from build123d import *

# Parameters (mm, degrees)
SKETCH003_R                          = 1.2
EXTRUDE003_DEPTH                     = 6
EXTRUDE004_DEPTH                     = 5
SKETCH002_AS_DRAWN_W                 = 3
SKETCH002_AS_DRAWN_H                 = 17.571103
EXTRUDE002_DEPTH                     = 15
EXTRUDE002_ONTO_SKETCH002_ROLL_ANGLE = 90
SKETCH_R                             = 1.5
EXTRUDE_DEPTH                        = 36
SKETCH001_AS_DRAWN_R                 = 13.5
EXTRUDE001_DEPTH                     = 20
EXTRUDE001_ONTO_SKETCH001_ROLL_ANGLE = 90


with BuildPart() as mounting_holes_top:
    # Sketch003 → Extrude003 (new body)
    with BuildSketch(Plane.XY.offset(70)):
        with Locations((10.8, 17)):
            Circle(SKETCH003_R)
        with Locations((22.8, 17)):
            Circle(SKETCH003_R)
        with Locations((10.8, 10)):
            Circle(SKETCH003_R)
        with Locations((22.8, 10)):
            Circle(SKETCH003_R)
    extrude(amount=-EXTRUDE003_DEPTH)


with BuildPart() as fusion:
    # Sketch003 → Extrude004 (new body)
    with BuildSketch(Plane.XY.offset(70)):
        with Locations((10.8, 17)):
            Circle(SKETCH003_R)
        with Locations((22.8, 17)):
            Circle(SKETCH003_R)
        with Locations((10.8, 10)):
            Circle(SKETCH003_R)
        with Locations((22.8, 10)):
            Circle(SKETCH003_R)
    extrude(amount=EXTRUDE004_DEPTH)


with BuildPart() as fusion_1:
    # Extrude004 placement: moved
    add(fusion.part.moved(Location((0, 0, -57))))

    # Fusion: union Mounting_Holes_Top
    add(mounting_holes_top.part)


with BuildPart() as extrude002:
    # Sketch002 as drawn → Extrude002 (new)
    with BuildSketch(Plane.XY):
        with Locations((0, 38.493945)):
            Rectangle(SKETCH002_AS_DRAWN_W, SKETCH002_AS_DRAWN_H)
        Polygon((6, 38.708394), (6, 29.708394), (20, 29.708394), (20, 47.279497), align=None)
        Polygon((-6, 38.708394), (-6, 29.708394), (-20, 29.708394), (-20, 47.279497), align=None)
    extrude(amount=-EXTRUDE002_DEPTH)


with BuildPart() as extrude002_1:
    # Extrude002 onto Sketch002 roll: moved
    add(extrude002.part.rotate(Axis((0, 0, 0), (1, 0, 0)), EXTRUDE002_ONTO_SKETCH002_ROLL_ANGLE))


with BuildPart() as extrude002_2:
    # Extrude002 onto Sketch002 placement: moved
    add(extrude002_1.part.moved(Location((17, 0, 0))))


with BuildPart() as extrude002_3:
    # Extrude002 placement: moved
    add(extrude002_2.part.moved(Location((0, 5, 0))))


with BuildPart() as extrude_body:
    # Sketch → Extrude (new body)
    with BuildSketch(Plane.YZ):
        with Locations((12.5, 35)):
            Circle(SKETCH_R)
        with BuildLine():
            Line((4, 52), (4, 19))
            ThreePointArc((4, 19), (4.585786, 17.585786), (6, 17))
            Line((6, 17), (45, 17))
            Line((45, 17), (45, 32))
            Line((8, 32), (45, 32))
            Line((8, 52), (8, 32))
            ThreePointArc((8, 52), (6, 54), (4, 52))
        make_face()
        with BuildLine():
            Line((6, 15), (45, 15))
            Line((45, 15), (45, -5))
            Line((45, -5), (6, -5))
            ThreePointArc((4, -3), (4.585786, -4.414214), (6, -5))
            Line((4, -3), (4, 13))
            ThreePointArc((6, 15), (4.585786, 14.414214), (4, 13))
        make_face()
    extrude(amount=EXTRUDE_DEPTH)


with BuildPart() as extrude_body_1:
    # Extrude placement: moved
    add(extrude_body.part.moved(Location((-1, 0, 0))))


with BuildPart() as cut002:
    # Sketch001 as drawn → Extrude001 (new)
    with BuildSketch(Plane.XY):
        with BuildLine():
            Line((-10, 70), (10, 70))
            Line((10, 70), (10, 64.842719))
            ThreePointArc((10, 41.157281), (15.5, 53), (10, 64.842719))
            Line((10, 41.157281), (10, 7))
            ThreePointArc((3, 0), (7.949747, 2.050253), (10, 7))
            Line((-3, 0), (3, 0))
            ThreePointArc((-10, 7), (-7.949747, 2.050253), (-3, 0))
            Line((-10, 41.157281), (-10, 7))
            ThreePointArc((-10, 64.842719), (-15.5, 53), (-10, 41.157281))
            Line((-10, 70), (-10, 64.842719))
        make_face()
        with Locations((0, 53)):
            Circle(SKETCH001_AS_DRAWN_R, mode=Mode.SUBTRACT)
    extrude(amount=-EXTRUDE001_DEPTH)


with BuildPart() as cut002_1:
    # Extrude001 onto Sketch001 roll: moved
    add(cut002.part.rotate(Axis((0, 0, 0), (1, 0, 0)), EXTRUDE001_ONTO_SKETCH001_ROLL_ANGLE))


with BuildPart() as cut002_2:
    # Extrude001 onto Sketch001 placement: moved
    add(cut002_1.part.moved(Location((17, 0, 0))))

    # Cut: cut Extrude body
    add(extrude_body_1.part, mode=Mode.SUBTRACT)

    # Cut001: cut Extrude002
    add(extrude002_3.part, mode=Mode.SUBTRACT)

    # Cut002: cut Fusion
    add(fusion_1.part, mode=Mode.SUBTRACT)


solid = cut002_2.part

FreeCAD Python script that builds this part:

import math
import FreeCAD as App
import Part
import Sketcher

V = App.Vector

doc = App.newDocument("Part")
params = doc.addObject("Spreadsheet::Sheet", "Params")
for row, (alias, value) in enumerate([
    ("sketch1_diameter", "2.4 mm"),
    ("pad1_length", "6 mm"),
    ("sketch2_diameter", "2.4 mm"),
    ("pad2_length", "5 mm"),
    ("sketch3_width", "3 mm"),
    ("sketch3_width2", "14 mm"),
    ("sketch3_height", "9 mm"),
    ("pad3_length", "15 mm"),
    ("sketch4_diameter", "3 mm"),
    ("sketch4_radius", "1.999999 mm"),
    ("sketch4_width", "39 mm"),
    ("sketch4_height", "33 mm"),
    ("sketch4_height2", "15 mm"),
    ("pad4_length", "36 mm"),
    ("sketch5_diameter", "27 mm"),
    ("sketch5_radius", "7.000002 mm"),
    ("sketch5_radius2", "15.499999 mm"),
    ("sketch5_width", "20 mm"),
    ("pad5_length", "20 mm"),
], start=1):
    params.set(f"A{row}", alias)
    params.set(f"B{row}", "=" + value)
    params.setAlias(f"B{row}", alias)

body = doc.addObject("PartDesign::Body", "Body")
body.AllowCompound = True

sketch1 = body.newObject("Sketcher::SketchObject", "Sketch")
sketch1.AttachmentSupport = (doc.getObject("XY_Plane"), [""])
sketch1.MapMode = "FlatFace"
sketch1.AttachmentOffset = App.Placement(V(0, 0, 70), App.Rotation())
sketch1.addGeometry(Part.Circle(V(10.8, 17, 0), V(0, 0, 1), 1.2), False)
sketch1.addGeometry(Part.Circle(V(22.8, 17, 0), V(0, 0, 1), 1.2), False)
sketch1.addGeometry(Part.Circle(V(10.8, 10, 0), V(0, 0, 1), 1.2), False)
sketch1.addGeometry(Part.Circle(V(22.8, 10, 0), V(0, 0, 1), 1.2), False)
sketch1.addConstraint(Sketcher.Constraint("Equal", 0, 1))
sketch1.addConstraint(Sketcher.Constraint("Equal", 1, 2))
sketch1.addConstraint(Sketcher.Constraint("Equal", 2, 3))
sketch1.addConstraint(Sketcher.Constraint("Horizontal", 0, 3, 1, 3))
sketch1.addConstraint(Sketcher.Constraint("Horizontal", 2, 3, 3, 3))
sketch1.addConstraint(Sketcher.Constraint("Vertical", 0, 3, 2, 3))
sketch1.addConstraint(Sketcher.Constraint("Vertical", 1, 3, 3, 3))
sketch1.addConstraint(Sketcher.Constraint("Diameter", 0, 2.4))
sketch1.addConstraint(Sketcher.Constraint("DistanceY", -1, 1, 0, 3, 17.0))
sketch1.addConstraint(Sketcher.Constraint("DistanceY", -1, 1, 2, 3, 10.0))
sketch1.addConstraint(Sketcher.Constraint("DistanceX", 0, 3, 1, 3, 12.0))
sketch1.addConstraint(Sketcher.Constraint("DistanceX", -1, 1, 0, 3, 10.8))
sketch1.setExpression("Constraints[7]", "Params.sketch1_diameter")
pad1 = body.newObject("PartDesign::Pad", "Pad")
pad1.Profile = sketch1
pad1.setExpression("Length", "Params.pad1_length")
pad1.Reversed = True
body2 = doc.addObject("PartDesign::Body", "Body001")
body2.AllowCompound = True

sketch2 = body2.newObject("Sketcher::SketchObject", "Sketch001")
sketch2.AttachmentSupport = (doc.getObject("XY_Plane001"), [""])
sketch2.MapMode = "FlatFace"
sketch2.AttachmentOffset = App.Placement(V(0, 0, 70), App.Rotation())
sketch2.addGeometry(Part.Circle(V(10.8, 17, 0), V(0, 0, 1), 1.2), False)
sketch2.addGeometry(Part.Circle(V(22.8, 17, 0), V(0, 0, 1), 1.2), False)
sketch2.addGeometry(Part.Circle(V(10.8, 10, 0), V(0, 0, 1), 1.2), False)
sketch2.addGeometry(Part.Circle(V(22.8, 10, 0), V(0, 0, 1), 1.2), False)
sketch2.addConstraint(Sketcher.Constraint("Equal", 0, 1))
sketch2.addConstraint(Sketcher.Constraint("Equal", 1, 2))
sketch2.addConstraint(Sketcher.Constraint("Equal", 2, 3))
sketch2.addConstraint(Sketcher.Constraint("Horizontal", 0, 3, 1, 3))
sketch2.addConstraint(Sketcher.Constraint("Horizontal", 2, 3, 3, 3))
sketch2.addConstraint(Sketcher.Constraint("Vertical", 0, 3, 2, 3))
sketch2.addConstraint(Sketcher.Constraint("Vertical", 1, 3, 3, 3))
sketch2.addConstraint(Sketcher.Constraint("Diameter", 0, 2.4))
sketch2.addConstraint(Sketcher.Constraint("DistanceY", -1, 1, 0, 3, 17.0))
sketch2.addConstraint(Sketcher.Constraint("DistanceY", -1, 1, 2, 3, 10.0))
sketch2.addConstraint(Sketcher.Constraint("DistanceX", 0, 3, 1, 3, 12.0))
sketch2.addConstraint(Sketcher.Constraint("DistanceX", -1, 1, 0, 3, 10.8))
sketch2.setExpression("Constraints[7]", "Params.sketch2_diameter")
pad2 = body2.newObject("PartDesign::Pad", "Pad001")
pad2.Profile = sketch2
pad2.setExpression("Length", "Params.pad2_length")
body3 = doc.addObject("PartDesign::Body", "Body002")
body3.AllowCompound = True
doc.recompute()

body2.Placement = App.Placement(V(0, 0, -57), App.Rotation(V(0, 0, 1), 0))
boolean = body3.newObject("PartDesign::Boolean", "Boolean")
boolean.Type = "Fuse"
boolean.addObjects([body2])
doc.recompute()

boolean2 = body3.newObject("PartDesign::Boolean", "Boolean001")
boolean2.Type = "Fuse"
boolean2.addObjects([body])
body4 = doc.addObject("PartDesign::Body", "Body003")
body4.AllowCompound = True

sketch3 = body4.newObject("Sketcher::SketchObject", "Sketch002")
sketch3.AttachmentSupport = (doc.getObject("XY_Plane003"), [""])
sketch3.MapMode = "FlatFace"
sketch3.addGeometry(Part.LineSegment(V(-1.5, 47.279497, 0), V(-1.5, 29.708393, 0)), False)
sketch3.addGeometry(Part.LineSegment(V(-1.5, 29.708393, 0), V(1.5, 29.708393, 0)), False)
sketch3.addGeometry(Part.LineSegment(V(1.5, 29.708393, 0), V(1.5, 47.279497, 0)), False)
sketch3.addGeometry(Part.LineSegment(V(1.5, 47.279497, 0), V(-1.5, 47.279497, 0)), False)
sketch3.addGeometry(Part.LineSegment(V(6, 38.708394, 0), V(6, 29.708394, 0)), False)
sketch3.addGeometry(Part.LineSegment(V(6, 29.708394, 0), V(20, 29.708394, 0)), False)
sketch3.addGeometry(Part.LineSegment(V(20, 29.708394, 0), V(20, 47.279497, 0)), False)
sketch3.addGeometry(Part.LineSegment(V(20, 47.279497, 0), V(6, 38.708394, 0)), False)
sketch3.addGeometry(Part.LineSegment(V(-6, 29.708394, 0), V(-6, 38.708394, 0)), False)
sketch3.addGeometry(Part.LineSegment(V(-6, 38.708394, 0), V(-20, 47.279497, 0)), False)
sketch3.addGeometry(Part.LineSegment(V(-20, 47.279497, 0), V(-20, 29.708394, 0)), False)
sketch3.addGeometry(Part.LineSegment(V(-20, 29.708394, 0), V(-6, 29.708394, 0)), False)
sketch3.addConstraint(Sketcher.Constraint("Coincident", 0, 2, 1, 1))
sketch3.addConstraint(Sketcher.Constraint("Coincident", 1, 2, 2, 1))
sketch3.addConstraint(Sketcher.Constraint("Coincident", 2, 2, 3, 1))
sketch3.addConstraint(Sketcher.Constraint("Coincident", 3, 2, 0, 1))
sketch3.addConstraint(Sketcher.Constraint("Coincident", 4, 2, 5, 1))
sketch3.addConstraint(Sketcher.Constraint("Coincident", 5, 2, 6, 1))
sketch3.addConstraint(Sketcher.Constraint("Coincident", 6, 2, 7, 1))
sketch3.addConstraint(Sketcher.Constraint("Coincident", 7, 2, 4, 1))
sketch3.addConstraint(Sketcher.Constraint("Coincident", 8, 2, 9, 1))
sketch3.addConstraint(Sketcher.Constraint("Coincident", 9, 2, 10, 1))
sketch3.addConstraint(Sketcher.Constraint("Coincident", 10, 2, 11, 1))
sketch3.addConstraint(Sketcher.Constraint("Coincident", 11, 2, 8, 1))
sketch3.addConstraint(Sketcher.Constraint("Vertical", 0))
sketch3.addConstraint(Sketcher.Constraint("Horizontal", 1))
sketch3.addConstraint(Sketcher.Constraint("Vertical", 2))
sketch3.addConstraint(Sketcher.Constraint("Horizontal", 3))
sketch3.addConstraint(Sketcher.Constraint("Vertical", 4))
sketch3.addConstraint(Sketcher.Constraint("Horizontal", 5))
sketch3.addConstraint(Sketcher.Constraint("Vertical", 6))
sketch3.addConstraint(Sketcher.Constraint("Vertical", 8))
sketch3.addConstraint(Sketcher.Constraint("Vertical", 10))
sketch3.addConstraint(Sketcher.Constraint("Horizontal", 11))
sketch3.addConstraint(Sketcher.Constraint("Symmetric", 7, 2, 8, 2, -2))
sketch3.addConstraint(Sketcher.Constraint("Symmetric", 6, 2, 9, 2, -2))
sketch3.addConstraint(Sketcher.Constraint("Horizontal", 1, 2, 4, 2))
sketch3.addConstraint(Sketcher.Constraint("Horizontal", 3, 2, 6, 2))
sketch3.addConstraint(Sketcher.Constraint("Horizontal", 5, 2, 10, 2))
sketch3.addConstraint(Sketcher.Constraint("DistanceX", 1, 1, 1, 2, 3.0))
sketch3.addConstraint(Sketcher.Constraint("DistanceX", 5, 1, 5, 2, 14.0))
sketch3.addConstraint(Sketcher.Constraint("DistanceY", 4, 2, 4, 1, 9.0))
sketch3.addConstraint(Sketcher.Constraint("DistanceX", -1, 1, 4, 2, 6.0))
sketch3.addConstraint(Sketcher.Constraint("DistanceX", 0, 2, -1, 1, 1.5))
sketch3.addConstraint(Sketcher.Constraint("DistanceY", 0, 2, 0, 1, 17.571103))
sketch3.addConstraint(Sketcher.Constraint("DistanceY", -1, 1, 0, 2, 29.708393))
sketch3.setExpression("Constraints[27]", "Params.sketch3_width")
sketch3.setExpression("Constraints[28]", "Params.sketch3_width2")
sketch3.setExpression("Constraints[29]", "Params.sketch3_height")
pad3 = body4.newObject("PartDesign::Pad", "Pad002")
pad3.Profile = sketch3
pad3.setExpression("Length", "Params.pad3_length")
pad3.Reversed = True
body5 = doc.addObject("PartDesign::Body", "Body004")
body5.AllowCompound = True
doc.recompute()

body4.Placement = App.Placement(V(0, 0, 0), App.Rotation(V(1, 0, 0), 90))
boolean3 = body5.newObject("PartDesign::Boolean", "Boolean002")
boolean3.Type = "Fuse"
boolean3.addObjects([body4])
body6 = doc.addObject("PartDesign::Body", "Body005")
body6.AllowCompound = True
doc.recompute()

body5.Placement = App.Placement(V(17, 0, 0), App.Rotation(V(0, 0, 1), 0))
boolean4 = body6.newObject("PartDesign::Boolean", "Boolean003")
boolean4.Type = "Fuse"
boolean4.addObjects([body5])
body7 = doc.addObject("PartDesign::Body", "Body006")
body7.AllowCompound = True
doc.recompute()

body6.Placement = App.Placement(V(0, 5, 0), App.Rotation(V(0, 0, 1), 0))
boolean5 = body7.newObject("PartDesign::Boolean", "Boolean004")
boolean5.Type = "Fuse"
boolean5.addObjects([body6])
body8 = doc.addObject("PartDesign::Body", "Body007")
body8.AllowCompound = True

sketch4 = body8.newObject("Sketcher::SketchObject", "Sketch003")
sketch4.AttachmentSupport = (doc.getObject("YZ_Plane007"), [""])
sketch4.MapMode = "FlatFace"
sketch4.addGeometry(Part.Circle(V(12.5, 35, 0), V(0, 0, 1), 1.5), False)
sketch4.addGeometry(Part.LineSegment(V(4, 52, 0), V(4, 19, 0)), False)
sketch4.addGeometry(Part.ArcOfCircle(Part.Circle(V(5.999999, 18.999999, 0), V(0, 0, 1), 1.999999), math.radians(179.999957), math.radians(270.000043)), False)
sketch4.addGeometry(Part.LineSegment(V(6, 17, 0), V(45, 17, 0)), False)
sketch4.addGeometry(Part.LineSegment(V(45, 17, 0), V(45, 32, 0)), False)
sketch4.addGeometry(Part.LineSegment(V(45, 32, 0), V(8, 32, 0)), False)
sketch4.addGeometry(Part.LineSegment(V(8, 32, 0), V(8, 52, 0)), False)
sketch4.addGeometry(Part.ArcOfCircle(Part.Circle(V(6, 52, 0), V(0, 0, 1), 2), math.radians(0), math.radians(180)), False)
sketch4.addGeometry(Part.LineSegment(V(45, 15, 0), V(6, 15, 0)), False)
sketch4.addGeometry(Part.ArcOfCircle(Part.Circle(V(5.999999, 13.000001, 0), V(0, 0, 1), 1.999999), math.radians(89.999957), math.radians(180.000043)), False)
sketch4.addGeometry(Part.LineSegment(V(4, 13, 0), V(4, -3, 0)), False)
sketch4.addGeometry(Part.ArcOfCircle(Part.Circle(V(5.999999, -3.000001, 0), V(0, 0, 1), 1.999999), math.radians(179.999957), math.radians(270.000043)), False)
sketch4.addGeometry(Part.LineSegment(V(6, -5, 0), V(45, -5, 0)), False)
sketch4.addGeometry(Part.LineSegment(V(45, -5, 0), V(45, 15, 0)), False)
sketch4.addConstraint(Sketcher.Constraint("Tangent", 1, 2, 2, 1))
sketch4.addConstraint(Sketcher.Constraint("Tangent", 2, 2, 3, 1))
sketch4.addConstraint(Sketcher.Constraint("Coincident", 3, 2, 4, 1))
sketch4.addConstraint(Sketcher.Constraint("Coincident", 4, 2, 5, 1))
sketch4.addConstraint(Sketcher.Constraint("Coincident", 5, 2, 6, 1))
sketch4.addConstraint(Sketcher.Constraint("Tangent", 6, 2, 7, 1))
sketch4.addConstraint(Sketcher.Constraint("Tangent", 7, 2, 1, 1))
sketch4.addConstraint(Sketcher.Constraint("Tangent", 8, 2, 9, 1))
sketch4.addConstraint(Sketcher.Constraint("Tangent", 9, 2, 10, 1))
sketch4.addConstraint(Sketcher.Constraint("Tangent", 10, 2, 11, 1))
sketch4.addConstraint(Sketcher.Constraint("Tangent", 11, 2, 12, 1))
sketch4.addConstraint(Sketcher.Constraint("Coincident", 12, 2, 13, 1))
sketch4.addConstraint(Sketcher.Constraint("Coincident", 13, 2, 8, 1))
sketch4.addConstraint(Sketcher.Constraint("Vertical", 1))
sketch4.addConstraint(Sketcher.Constraint("Horizontal", 3))
sketch4.addConstraint(Sketcher.Constraint("Vertical", 4))
sketch4.addConstraint(Sketcher.Constraint("Horizontal", 5))
sketch4.addConstraint(Sketcher.Constraint("Vertical", 6))
sketch4.addConstraint(Sketcher.Constraint("Horizontal", 8))
sketch4.addConstraint(Sketcher.Constraint("Vertical", 10))
sketch4.addConstraint(Sketcher.Constraint("Horizontal", 12))
sketch4.addConstraint(Sketcher.Constraint("Vertical", 13))
sketch4.addConstraint(Sketcher.Constraint("Equal", 2, 7))
sketch4.addConstraint(Sketcher.Constraint("Equal", 7, 9))
sketch4.addConstraint(Sketcher.Constraint("Equal", 9, 11))
sketch4.addConstraint(Sketcher.Constraint("Vertical", 7, 3, 9, 3))
sketch4.addConstraint(Sketcher.Constraint("Vertical", 4, 2, 12, 2))
sketch4.addConstraint(Sketcher.Constraint("Equal", 6, 13))
sketch4.addConstraint(Sketcher.Constraint("Diameter", 0, 3.0))
sketch4.addConstraint(Sketcher.Constraint("Radius", 2, 1.999999))
sketch4.addConstraint(Sketcher.Constraint("DistanceX", 3, 1, 3, 2, 39.0))
sketch4.addConstraint(Sketcher.Constraint("DistanceY", 1, 2, 1, 1, 33.0))
sketch4.addConstraint(Sketcher.Constraint("DistanceY", 4, 1, 4, 2, 15.0))
sketch4.addConstraint(Sketcher.Constraint("DistanceY", -1, 1, 0, 3, 35.0))
sketch4.addConstraint(Sketcher.Constraint("DistanceX", -1, 1, 2, 3, 5.999999))
sketch4.addConstraint(Sketcher.Constraint("DistanceY", -1, 1, 2, 3, 18.999999))
sketch4.addConstraint(Sketcher.Constraint("DistanceY", -1, 1, 9, 3, 13.000001))
sketch4.addConstraint(Sketcher.Constraint("DistanceX", -1, 1, 0, 3, 12.5))
sketch4.setExpression("Constraints[28]", "Params.sketch4_diameter")
sketch4.setExpression("Constraints[29]", "Params.sketch4_radius")
sketch4.setExpression("Constraints[30]", "Params.sketch4_width")
sketch4.setExpression("Constraints[31]", "Params.sketch4_height")
sketch4.setExpression("Constraints[32]", "Params.sketch4_height2")
pad4 = body8.newObject("PartDesign::Pad", "Pad003")
pad4.Profile = sketch4
pad4.setExpression("Length", "Params.pad4_length")
body9 = doc.addObject("PartDesign::Body", "Body008")
body9.AllowCompound = True
doc.recompute()

body8.Placement = App.Placement(V(-1, 0, 0), App.Rotation(V(0, 0, 1), 0))
boolean6 = body9.newObject("PartDesign::Boolean", "Boolean005")
boolean6.Type = "Fuse"
boolean6.addObjects([body8])
body10 = doc.addObject("PartDesign::Body", "Body009")

sketch5 = body10.newObject("Sketcher::SketchObject", "Sketch004")
sketch5.AttachmentSupport = (doc.getObject("XY_Plane009"), [""])
sketch5.MapMode = "FlatFace"
sketch5.addGeometry(Part.LineSegment(V(10, 70, 0), V(-10, 70, 0)), False)
sketch5.addGeometry(Part.LineSegment(V(-10, 70, 0), V(-10, 64.842719, 0)), False)
sketch5.addGeometry(Part.ArcOfCircle(Part.Circle(V(-0.000001, 53, 0), V(0, 0, 1), 15.499999), math.radians(130.177768), math.radians(229.822232)), False)
sketch5.addGeometry(Part.LineSegment(V(-10, 41.157281, 0), V(-10, 7, 0)), False)
sketch5.addGeometry(Part.ArcOfCircle(Part.Circle(V(-2.999998, 7.000002, 0), V(0, 0, 1), 7.000002), math.radians(-179.999987), math.radians(-90.000013)), False)
sketch5.addGeometry(Part.LineSegment(V(-3, 0, 0), V(3, 0, 0)), False)
sketch5.addGeometry(Part.ArcOfCircle(Part.Circle(V(2.999998, 7.000002, 0), V(0, 0, 1), 7.000002), math.radians(-89.999987), math.radians(-0.000013)), False)
sketch5.addGeometry(Part.LineSegment(V(10, 7, 0), V(10, 41.157281, 0)), False)
sketch5.addGeometry(Part.ArcOfCircle(Part.Circle(V(0.000001, 53, 0), V(0, 0, 1), 15.499999), math.radians(-49.822232), math.radians(49.822232)), False)
sketch5.addGeometry(Part.LineSegment(V(10, 64.842719, 0), V(10, 70, 0)), False)
sketch5.addGeometry(Part.Circle(V(0, 53, 0), V(0, 0, 1), 13.5), False)
sketch5.addConstraint(Sketcher.Constraint("Coincident", 0, 2, 1, 1))
sketch5.addConstraint(Sketcher.Constraint("Coincident", 1, 2, 2, 1))
sketch5.addConstraint(Sketcher.Constraint("Coincident", 2, 2, 3, 1))
sketch5.addConstraint(Sketcher.Constraint("Tangent", 3, 2, 4, 1))
sketch5.addConstraint(Sketcher.Constraint("Tangent", 4, 2, 5, 1))
sketch5.addConstraint(Sketcher.Constraint("Tangent", 5, 2, 6, 1))
sketch5.addConstraint(Sketcher.Constraint("Tangent", 6, 2, 7, 1))
sketch5.addConstraint(Sketcher.Constraint("Coincident", 7, 2, 8, 1))
sketch5.addConstraint(Sketcher.Constraint("Coincident", 8, 2, 9, 1))
sketch5.addConstraint(Sketcher.Constraint("Coincident", 9, 2, 0, 1))
sketch5.addConstraint(Sketcher.Constraint("Horizontal", 0))
sketch5.addConstraint(Sketcher.Constraint("Vertical", 1))
sketch5.addConstraint(Sketcher.Constraint("Vertical", 3))
sketch5.addConstraint(Sketcher.Constraint("Horizontal", 5))
sketch5.addConstraint(Sketcher.Constraint("Vertical", 7))
sketch5.addConstraint(Sketcher.Constraint("Vertical", 9))
sketch5.addConstraint(Sketcher.Constraint("Coincident", 8, 3, 2, 3))
sketch5.addConstraint(Sketcher.Constraint("Coincident", 10, 3, 2, 3))
sketch5.addConstraint(Sketcher.Constraint("Equal", 4, 6))
sketch5.addConstraint(Sketcher.Constraint("Equal", 2, 8))
sketch5.addConstraint(Sketcher.Constraint("Symmetric", 4, 2, 5, 2, -1, 1))
sketch5.addConstraint(Sketcher.Constraint("Symmetric", 1, 2, 8, 2, -2))
sketch5.addConstraint(Sketcher.Constraint("Vertical", 1, 2, 2, 2))
sketch5.addConstraint(Sketcher.Constraint("Diameter", 10, 27.0))
sketch5.addConstraint(Sketcher.Constraint("Radius", 4, 7.000002))
sketch5.addConstraint(Sketcher.Constraint("Radius", 2, 15.499999))
sketch5.addConstraint(Sketcher.Constraint("DistanceX", 0, 2, 0, 1, 20.0))
sketch5.addConstraint(Sketcher.Constraint("DistanceY", -1, 1, 2, 3, 53.0))
sketch5.addConstraint(Sketcher.Constraint("DistanceY", -1, 1, 0, 2, 70.0))
sketch5.setExpression("Constraints[23]", "Params.sketch5_diameter")
sketch5.setExpression("Constraints[24]", "Params.sketch5_radius")
sketch5.setExpression("Constraints[25]", "Params.sketch5_radius2")
sketch5.setExpression("Constraints[26]", "Params.sketch5_width")
pad5 = body10.newObject("PartDesign::Pad", "Pad004")
pad5.Profile = sketch5
pad5.setExpression("Length", "Params.pad5_length")
pad5.Reversed = True
body11 = doc.addObject("PartDesign::Body", "Body010")
doc.recompute()

body10.Placement = App.Placement(V(0, 0, 0), App.Rotation(V(1, 0, 0), 90))
boolean7 = body11.newObject("PartDesign::Boolean", "Boolean006")
boolean7.Type = "Fuse"
boolean7.addObjects([body10])
body12 = doc.addObject("PartDesign::Body", "Body011")
doc.recompute()

body11.Placement = App.Placement(V(17, 0, 0), App.Rotation(V(0, 0, 1), 0))
boolean8 = body12.newObject("PartDesign::Boolean", "Boolean007")
boolean8.Type = "Fuse"
boolean8.addObjects([body11])
doc.recompute()

boolean9 = body12.newObject("PartDesign::Boolean", "Boolean008")
boolean9.Type = "Cut"
boolean9.addObjects([body9])
doc.recompute()

boolean10 = body12.newObject("PartDesign::Boolean", "Boolean009")
boolean10.Type = "Cut"
boolean10.addObjects([body7])
doc.recompute()

boolean11 = body12.newObject("PartDesign::Boolean", "Boolean010")
boolean11.Type = "Cut"
boolean11.addObjects([body3])

doc.recompute()
